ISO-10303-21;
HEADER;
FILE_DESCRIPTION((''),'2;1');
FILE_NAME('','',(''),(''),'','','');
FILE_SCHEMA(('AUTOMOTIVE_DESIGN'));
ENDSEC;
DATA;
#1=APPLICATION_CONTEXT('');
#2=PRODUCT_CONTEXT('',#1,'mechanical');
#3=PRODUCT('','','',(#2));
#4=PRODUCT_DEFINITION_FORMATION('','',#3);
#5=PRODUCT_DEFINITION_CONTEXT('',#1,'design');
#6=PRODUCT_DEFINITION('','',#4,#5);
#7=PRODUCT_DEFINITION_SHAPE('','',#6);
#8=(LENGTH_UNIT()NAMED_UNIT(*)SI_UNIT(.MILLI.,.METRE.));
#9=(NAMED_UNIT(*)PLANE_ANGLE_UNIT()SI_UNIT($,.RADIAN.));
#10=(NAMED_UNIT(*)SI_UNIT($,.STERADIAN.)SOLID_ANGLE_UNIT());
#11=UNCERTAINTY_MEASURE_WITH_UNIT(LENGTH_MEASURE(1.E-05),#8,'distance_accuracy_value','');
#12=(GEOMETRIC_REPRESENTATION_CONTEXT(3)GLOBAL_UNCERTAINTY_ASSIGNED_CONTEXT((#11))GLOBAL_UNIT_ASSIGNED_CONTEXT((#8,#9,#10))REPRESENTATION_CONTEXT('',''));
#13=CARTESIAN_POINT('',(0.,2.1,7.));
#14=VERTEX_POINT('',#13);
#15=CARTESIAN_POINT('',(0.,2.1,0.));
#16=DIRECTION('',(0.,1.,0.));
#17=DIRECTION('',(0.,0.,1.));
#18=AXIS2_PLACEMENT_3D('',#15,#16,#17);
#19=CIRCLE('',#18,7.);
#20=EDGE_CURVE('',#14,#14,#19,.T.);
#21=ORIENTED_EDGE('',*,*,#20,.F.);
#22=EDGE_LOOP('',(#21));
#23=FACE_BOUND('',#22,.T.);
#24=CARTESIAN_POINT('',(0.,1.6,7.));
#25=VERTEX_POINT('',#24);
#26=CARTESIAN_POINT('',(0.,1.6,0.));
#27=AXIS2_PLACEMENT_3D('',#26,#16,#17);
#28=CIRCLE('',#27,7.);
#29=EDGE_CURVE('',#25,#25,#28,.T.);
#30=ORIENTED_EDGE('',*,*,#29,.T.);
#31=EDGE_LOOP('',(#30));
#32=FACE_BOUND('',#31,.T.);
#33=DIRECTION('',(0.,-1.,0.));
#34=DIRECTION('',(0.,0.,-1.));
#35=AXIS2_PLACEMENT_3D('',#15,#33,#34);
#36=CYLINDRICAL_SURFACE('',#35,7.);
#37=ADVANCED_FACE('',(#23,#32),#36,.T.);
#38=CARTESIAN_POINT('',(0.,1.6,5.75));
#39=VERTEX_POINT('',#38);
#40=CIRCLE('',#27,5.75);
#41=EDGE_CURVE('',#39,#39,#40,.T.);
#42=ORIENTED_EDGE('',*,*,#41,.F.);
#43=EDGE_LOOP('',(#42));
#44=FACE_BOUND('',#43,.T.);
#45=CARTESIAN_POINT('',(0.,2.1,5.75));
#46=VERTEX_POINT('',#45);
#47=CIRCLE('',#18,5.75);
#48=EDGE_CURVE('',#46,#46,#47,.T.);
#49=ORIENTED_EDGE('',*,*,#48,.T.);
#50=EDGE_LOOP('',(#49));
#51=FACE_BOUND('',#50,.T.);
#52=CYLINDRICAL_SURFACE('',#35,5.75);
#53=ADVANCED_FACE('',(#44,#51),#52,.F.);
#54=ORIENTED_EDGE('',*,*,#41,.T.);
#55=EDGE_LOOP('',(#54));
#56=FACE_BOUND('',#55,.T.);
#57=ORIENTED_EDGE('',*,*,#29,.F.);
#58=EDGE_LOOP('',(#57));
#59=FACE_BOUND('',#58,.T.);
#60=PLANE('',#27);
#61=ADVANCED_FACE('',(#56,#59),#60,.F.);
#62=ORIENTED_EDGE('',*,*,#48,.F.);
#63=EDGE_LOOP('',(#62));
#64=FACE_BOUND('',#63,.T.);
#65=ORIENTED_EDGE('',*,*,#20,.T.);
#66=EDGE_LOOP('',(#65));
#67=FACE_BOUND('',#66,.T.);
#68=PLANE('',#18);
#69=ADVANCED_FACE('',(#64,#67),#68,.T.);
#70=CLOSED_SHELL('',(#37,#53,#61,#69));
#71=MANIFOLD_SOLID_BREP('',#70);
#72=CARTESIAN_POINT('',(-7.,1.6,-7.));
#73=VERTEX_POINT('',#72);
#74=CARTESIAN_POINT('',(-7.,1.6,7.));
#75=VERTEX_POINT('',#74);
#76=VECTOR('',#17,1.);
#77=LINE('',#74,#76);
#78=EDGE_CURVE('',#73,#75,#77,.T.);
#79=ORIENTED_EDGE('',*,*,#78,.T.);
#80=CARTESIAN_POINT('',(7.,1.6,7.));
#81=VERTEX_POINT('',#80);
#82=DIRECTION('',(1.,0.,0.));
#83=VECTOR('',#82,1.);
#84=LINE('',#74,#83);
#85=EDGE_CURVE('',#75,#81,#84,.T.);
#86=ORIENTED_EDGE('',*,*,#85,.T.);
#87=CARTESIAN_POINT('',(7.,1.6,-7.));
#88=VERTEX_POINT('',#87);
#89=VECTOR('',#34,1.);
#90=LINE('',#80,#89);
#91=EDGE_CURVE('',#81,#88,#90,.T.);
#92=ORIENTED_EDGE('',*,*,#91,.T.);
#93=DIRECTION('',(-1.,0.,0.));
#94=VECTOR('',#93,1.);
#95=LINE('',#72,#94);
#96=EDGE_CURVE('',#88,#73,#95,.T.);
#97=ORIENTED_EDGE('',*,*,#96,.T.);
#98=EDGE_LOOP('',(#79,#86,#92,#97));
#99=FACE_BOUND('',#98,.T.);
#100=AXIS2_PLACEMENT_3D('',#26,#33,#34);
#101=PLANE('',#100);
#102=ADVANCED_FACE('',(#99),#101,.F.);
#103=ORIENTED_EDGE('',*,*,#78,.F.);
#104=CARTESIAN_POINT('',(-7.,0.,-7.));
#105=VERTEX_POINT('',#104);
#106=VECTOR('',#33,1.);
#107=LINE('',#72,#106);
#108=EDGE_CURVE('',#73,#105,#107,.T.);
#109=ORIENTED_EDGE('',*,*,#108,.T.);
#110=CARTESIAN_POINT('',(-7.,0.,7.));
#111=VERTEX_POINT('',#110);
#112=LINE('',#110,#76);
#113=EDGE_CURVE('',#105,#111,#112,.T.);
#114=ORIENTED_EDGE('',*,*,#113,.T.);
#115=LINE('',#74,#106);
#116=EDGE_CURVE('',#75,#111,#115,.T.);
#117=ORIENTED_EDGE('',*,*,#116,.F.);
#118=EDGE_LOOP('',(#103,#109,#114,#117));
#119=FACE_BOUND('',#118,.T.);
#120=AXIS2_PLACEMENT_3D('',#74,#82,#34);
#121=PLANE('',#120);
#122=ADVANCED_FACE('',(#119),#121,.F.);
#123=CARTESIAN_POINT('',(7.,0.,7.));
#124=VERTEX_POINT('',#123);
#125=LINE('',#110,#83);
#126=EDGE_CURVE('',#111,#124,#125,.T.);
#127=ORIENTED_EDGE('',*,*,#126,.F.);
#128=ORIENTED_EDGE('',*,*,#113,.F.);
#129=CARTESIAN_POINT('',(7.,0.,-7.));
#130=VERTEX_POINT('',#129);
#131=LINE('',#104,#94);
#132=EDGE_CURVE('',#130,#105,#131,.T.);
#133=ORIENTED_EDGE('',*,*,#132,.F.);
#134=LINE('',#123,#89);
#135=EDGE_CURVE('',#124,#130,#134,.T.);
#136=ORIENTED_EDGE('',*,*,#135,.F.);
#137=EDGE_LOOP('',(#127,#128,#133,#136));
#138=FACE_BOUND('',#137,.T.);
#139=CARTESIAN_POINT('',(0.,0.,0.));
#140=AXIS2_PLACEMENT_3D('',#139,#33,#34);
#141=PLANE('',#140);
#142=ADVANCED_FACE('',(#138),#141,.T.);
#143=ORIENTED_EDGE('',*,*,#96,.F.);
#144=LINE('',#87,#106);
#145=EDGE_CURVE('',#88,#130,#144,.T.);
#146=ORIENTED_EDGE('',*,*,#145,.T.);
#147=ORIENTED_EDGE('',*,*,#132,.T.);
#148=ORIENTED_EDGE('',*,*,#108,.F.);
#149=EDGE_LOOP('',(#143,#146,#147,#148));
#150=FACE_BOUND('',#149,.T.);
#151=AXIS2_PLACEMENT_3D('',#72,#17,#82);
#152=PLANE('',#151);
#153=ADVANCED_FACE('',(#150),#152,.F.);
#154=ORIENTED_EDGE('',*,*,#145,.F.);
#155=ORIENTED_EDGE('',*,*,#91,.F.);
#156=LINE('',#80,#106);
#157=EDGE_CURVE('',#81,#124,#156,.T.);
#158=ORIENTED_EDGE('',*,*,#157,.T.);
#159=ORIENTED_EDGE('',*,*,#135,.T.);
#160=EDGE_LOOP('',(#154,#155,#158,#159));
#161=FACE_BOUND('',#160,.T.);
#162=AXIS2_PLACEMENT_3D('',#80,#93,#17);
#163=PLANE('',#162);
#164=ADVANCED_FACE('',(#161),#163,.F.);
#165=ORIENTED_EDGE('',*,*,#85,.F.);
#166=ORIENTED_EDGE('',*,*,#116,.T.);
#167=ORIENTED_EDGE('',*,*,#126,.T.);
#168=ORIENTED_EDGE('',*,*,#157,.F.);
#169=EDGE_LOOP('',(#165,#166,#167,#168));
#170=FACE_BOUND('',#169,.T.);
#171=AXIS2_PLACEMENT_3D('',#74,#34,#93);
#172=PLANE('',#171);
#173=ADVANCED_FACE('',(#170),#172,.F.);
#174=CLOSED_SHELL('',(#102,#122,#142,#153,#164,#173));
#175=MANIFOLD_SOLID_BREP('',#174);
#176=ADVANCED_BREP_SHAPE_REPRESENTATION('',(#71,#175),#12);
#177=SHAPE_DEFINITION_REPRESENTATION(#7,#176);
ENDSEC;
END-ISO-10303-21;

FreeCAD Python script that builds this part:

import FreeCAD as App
import Part
import Sketcher
from FreeCAD import Vector
Q = App.Units.Quantity

doc = App.newDocument("Part")
body = doc.addObject("PartDesign::Body", "Body")

# Sketch on XZ plane
sketch1 = doc.addObject("Sketcher::SketchObject", "Sketch")
body.addObject(sketch1)
sketch1.AttachmentSupport = (doc.XZ_Plane, [""])
sketch1.MapMode = "FlatFace"
sketch1.addGeometry([
    Part.LineSegment(Vector(-7, -7, 0), Vector(-7, 7, 0)),
    Part.LineSegment(Vector(-7, 7, 0), Vector(7, 7, 0)),
    Part.LineSegment(Vector(7, 7, 0), Vector(7, -7, 0)),
    Part.LineSegment(Vector(7, -7, 0), Vector(-7, -7, 0)),
], False)
sketch1.addConstraint([
    Sketcher.Constraint("Coincident", 0, 2, 1, 1),
    Sketcher.Constraint("Coincident", 1, 2, 2, 1),
    Sketcher.Constraint("Coincident", 2, 2, 3, 1),
    Sketcher.Constraint("Coincident", 3, 2, 0, 1),
    Sketcher.Constraint("Vertical", 0),
    Sketcher.Constraint("Horizontal", 1),
    Sketcher.Constraint("Vertical", 2),
    Sketcher.Constraint("Horizontal", 3),
    Sketcher.Constraint("Symmetric", 0, 2, 2, 2, -1, 1),
    Sketcher.Constraint("Equal", 3, 0),
    Sketcher.Constraint("DistanceX", 1, 1, 1, 2, Q("14 mm")),
])
pad1 = doc.addObject("PartDesign::Pad", "Pad")
body.addObject(pad1)
pad1.Profile = sketch1
pad1.Length = 1.6
pad1.Reversed = True
body2 = doc.addObject("PartDesign::Body", "Body001")

# Sketch on XZ plane
sketch2 = doc.addObject("Sketcher::SketchObject", "Sketch001")
body2.addObject(sketch2)
sketch2.AttachmentSupport = (doc.getObject("XZ_Plane001"), [""])
sketch2.MapMode = "FlatFace"
sketch2.AttachmentOffset = App.Placement(Vector(0, 0, -1.6), App.Rotation())
sketch2.addGeometry([
    Part.Circle(Vector(0, 0, 0), Vector(0, 0, 1), 7),
    Part.Circle(Vector(0, 0, 0), Vector(0, 0, 1), 6),
], False)
sketch2.addConstraint([
    Sketcher.Constraint("Coincident", 0, 3, -1, 1),
    Sketcher.Constraint("Coincident", 1, 3, -1, 1),
    Sketcher.Constraint("Diameter", 0, Q("14 mm")),
    Sketcher.Constraint("Diameter", 1, Q("11.5 mm")),
])
pad2 = doc.addObject("PartDesign::Pad", "Pad001")
body2.addObject(pad2)
pad2.Profile = sketch2
pad2.Length = 0.5
pad2.Reversed = True

doc.recompute()
